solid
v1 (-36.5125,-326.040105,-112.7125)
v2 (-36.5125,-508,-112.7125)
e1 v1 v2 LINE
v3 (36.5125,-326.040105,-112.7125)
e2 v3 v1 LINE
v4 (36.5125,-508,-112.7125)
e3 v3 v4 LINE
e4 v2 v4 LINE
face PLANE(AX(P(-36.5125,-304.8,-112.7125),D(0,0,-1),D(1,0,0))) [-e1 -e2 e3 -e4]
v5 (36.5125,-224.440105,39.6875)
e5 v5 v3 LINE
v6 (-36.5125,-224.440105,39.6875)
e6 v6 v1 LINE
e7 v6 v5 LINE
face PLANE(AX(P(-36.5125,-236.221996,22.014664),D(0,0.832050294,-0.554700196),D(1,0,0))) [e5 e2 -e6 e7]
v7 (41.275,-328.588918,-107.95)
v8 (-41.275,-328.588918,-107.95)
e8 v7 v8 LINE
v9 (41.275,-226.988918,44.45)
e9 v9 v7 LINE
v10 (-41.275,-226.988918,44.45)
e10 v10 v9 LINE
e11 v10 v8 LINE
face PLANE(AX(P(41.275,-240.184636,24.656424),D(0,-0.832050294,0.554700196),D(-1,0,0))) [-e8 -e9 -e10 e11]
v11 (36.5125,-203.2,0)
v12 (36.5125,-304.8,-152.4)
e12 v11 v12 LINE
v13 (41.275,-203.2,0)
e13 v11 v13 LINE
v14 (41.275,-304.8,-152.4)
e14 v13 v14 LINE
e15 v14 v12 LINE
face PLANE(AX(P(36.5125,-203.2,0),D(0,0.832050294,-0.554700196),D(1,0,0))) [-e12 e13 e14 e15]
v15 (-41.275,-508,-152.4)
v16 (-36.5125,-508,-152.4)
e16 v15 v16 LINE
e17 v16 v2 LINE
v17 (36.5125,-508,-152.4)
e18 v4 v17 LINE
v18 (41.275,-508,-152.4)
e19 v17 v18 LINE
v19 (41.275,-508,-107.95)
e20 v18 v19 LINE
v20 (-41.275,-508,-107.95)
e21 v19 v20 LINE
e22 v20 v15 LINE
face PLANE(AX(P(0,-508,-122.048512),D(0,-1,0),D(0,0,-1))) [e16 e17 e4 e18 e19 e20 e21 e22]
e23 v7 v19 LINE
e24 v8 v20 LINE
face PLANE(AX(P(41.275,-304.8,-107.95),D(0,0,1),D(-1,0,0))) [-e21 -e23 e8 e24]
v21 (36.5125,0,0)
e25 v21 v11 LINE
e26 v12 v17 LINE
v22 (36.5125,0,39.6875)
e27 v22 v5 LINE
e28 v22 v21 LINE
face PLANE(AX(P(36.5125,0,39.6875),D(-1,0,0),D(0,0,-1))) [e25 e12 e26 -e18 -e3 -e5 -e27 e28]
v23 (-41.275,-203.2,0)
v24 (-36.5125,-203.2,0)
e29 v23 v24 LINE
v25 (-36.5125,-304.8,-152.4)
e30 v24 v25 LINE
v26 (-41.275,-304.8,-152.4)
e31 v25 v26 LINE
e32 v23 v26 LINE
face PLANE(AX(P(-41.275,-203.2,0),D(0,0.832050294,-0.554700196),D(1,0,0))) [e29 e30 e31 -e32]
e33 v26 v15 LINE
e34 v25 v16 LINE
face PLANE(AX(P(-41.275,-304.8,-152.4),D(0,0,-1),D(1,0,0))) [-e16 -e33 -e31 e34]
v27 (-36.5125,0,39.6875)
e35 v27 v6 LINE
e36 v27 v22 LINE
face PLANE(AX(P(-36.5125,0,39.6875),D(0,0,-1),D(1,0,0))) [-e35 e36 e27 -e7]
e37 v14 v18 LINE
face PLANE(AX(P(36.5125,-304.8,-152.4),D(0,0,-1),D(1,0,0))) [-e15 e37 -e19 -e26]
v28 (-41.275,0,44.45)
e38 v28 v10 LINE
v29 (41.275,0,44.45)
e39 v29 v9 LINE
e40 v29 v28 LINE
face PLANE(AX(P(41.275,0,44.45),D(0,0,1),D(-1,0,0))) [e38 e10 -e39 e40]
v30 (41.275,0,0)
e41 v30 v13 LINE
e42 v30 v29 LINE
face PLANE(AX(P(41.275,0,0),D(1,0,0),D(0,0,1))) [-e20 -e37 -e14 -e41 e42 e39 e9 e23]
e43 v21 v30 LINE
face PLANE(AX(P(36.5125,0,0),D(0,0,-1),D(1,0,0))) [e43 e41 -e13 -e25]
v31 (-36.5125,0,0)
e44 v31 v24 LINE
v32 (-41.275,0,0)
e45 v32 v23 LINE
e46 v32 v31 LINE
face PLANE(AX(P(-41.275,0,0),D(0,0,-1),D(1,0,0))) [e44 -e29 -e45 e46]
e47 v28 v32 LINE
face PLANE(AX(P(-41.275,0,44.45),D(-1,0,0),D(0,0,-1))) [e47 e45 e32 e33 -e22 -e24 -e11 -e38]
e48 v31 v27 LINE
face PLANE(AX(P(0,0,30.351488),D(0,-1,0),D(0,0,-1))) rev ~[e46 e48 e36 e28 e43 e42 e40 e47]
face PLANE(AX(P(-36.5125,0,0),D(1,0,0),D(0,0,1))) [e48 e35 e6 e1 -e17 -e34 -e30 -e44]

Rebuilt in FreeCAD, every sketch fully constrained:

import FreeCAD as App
import Part
import Sketcher

V = App.Vector
Q = App.Units.Quantity

doc = App.newDocument("Part")
body = doc.addObject("PartDesign::Body", "Body")

# Sketch on XZ plane
sketch1 = doc.addObject("Sketcher::SketchObject", "Sketch")
body.addObject(sketch1)
sketch1.AttachmentSupport = (doc.XZ_Plane, [""])
sketch1.MapMode = "FlatFace"
sketch1.addGeometry(Part.LineSegment(V(-41.3, 44.5, 0), V(-41.3, 0, 0)), False)
sketch1.addGeometry(Part.LineSegment(V(-41.3, 0, 0), V(-36.5, 0, 0)), False)
sketch1.addGeometry(Part.LineSegment(V(-36.5, 0, 0), V(-36.5, 39.7, 0)), False)
sketch1.addGeometry(Part.LineSegment(V(-36.5, 39.7, 0), V(36.5, 39.7, 0)), False)
sketch1.addGeometry(Part.LineSegment(V(36.5, 39.7, 0), V(36.5, 0, 0)), False)
sketch1.addGeometry(Part.LineSegment(V(36.5, 0, 0), V(41.3, 0, 0)), False)
sketch1.addGeometry(Part.LineSegment(V(41.3, 0, 0), V(41.3, 44.5, 0)), False)
sketch1.addGeometry(Part.LineSegment(V(41.3, 44.5, 0), V(-41.3, 44.5, 0)), False)
sketch1.addConstraint(Sketcher.Constraint("Coincident", 0, 2, 1, 1))
sketch1.addConstraint(Sketcher.Constraint("Coincident", 1, 2, 2, 1))
sketch1.addConstraint(Sketcher.Constraint("Coincident", 2, 2, 3, 1))
sketch1.addConstraint(Sketcher.Constraint("Coincident", 3, 2, 4, 1))
sketch1.addConstraint(Sketcher.Constraint("Coincident", 4, 2, 5, 1))
sketch1.addConstraint(Sketcher.Constraint("Coincident", 5, 2, 6, 1))
sketch1.addConstraint(Sketcher.Constraint("Coincident", 6, 2, 7, 1))
sketch1.addConstraint(Sketcher.Constraint("Coincident", 7, 2, 0, 1))
sketch1.addConstraint(Sketcher.Constraint("Vertical", 0))
sketch1.addConstraint(Sketcher.Constraint("Horizontal", 1))
sketch1.addConstraint(Sketcher.Constraint("Vertical", 2))
sketch1.addConstraint(Sketcher.Constraint("Horizontal", 3))
sketch1.addConstraint(Sketcher.Constraint("Vertical", 4))
sketch1.addConstraint(Sketcher.Constraint("Horizontal", 5))
sketch1.addConstraint(Sketcher.Constraint("Vertical", 6))
sketch1.addConstraint(Sketcher.Constraint("Horizontal", 7))
sketch1.addConstraint(Sketcher.Constraint("Symmetric", 1, 2, 4, 2, -1, 1))
sketch1.addConstraint(Sketcher.Constraint("Symmetric", 0, 2, 5, 2, -2))
sketch1.addConstraint(Sketcher.Constraint("DistanceX", 7, 2, 7, 1, Q("3.25 in")))
sketch1.addConstraint(Sketcher.Constraint("DistanceY", 0, 2, 0, 1, Q("1.75 in")))
sketch1.addConstraint(Sketcher.Constraint("DistanceX", 1, 1, 1, 2, Q("0.1875 in")))
sketch1.addConstraint(Sketcher.Constraint("DistanceY", 2, 1, 2, 2, Q("1.5625 in")))

# Sketch on YZ plane
sketch2 = doc.addObject("Sketcher::SketchObject", "Sketch001")
body.addObject(sketch2)
sketch2.AttachmentSupport = (doc.YZ_Plane, [""])
sketch2.MapMode = "FlatFace"
sketch2.addGeometry(Part.LineSegment(V(0, 0, 0), V(-203, 0, 0)), False)
sketch2.addGeometry(Part.LineSegment(V(-203, 0, 0), V(-305, -152, 0)), False)
sketch2.addGeometry(Part.LineSegment(V(-305, -152, 0), V(-508, -152, 0)), False)
sketch2.addConstraint(Sketcher.Constraint("Coincident", 0, 2, 1, 1))
sketch2.addConstraint(Sketcher.Constraint("Coincident", 1, 2, 2, 1))
sketch2.addConstraint(Sketcher.Constraint("Horizontal", 0))
sketch2.addConstraint(Sketcher.Constraint("Horizontal", 2))
sketch2.addConstraint(Sketcher.Constraint("Coincident", 0, 1, -1, 1))
sketch2.addConstraint(Sketcher.Constraint("Equal", 0, 2))
sketch2.addConstraint(Sketcher.Constraint("DistanceX", 0, 2, 0, 1, Q("8 in")))
sketch2.addConstraint(Sketcher.Constraint("DistanceX", 1, 2, -1, 1, Q("12 in")))
sketch2.addConstraint(Sketcher.Constraint("DistanceY", 1, 2, -1, 1, Q("6 in")))
doc.recompute()

additivepipe = doc.addObject("PartDesign::AdditivePipe", "AdditivePipe")
body.addObject(additivepipe)
additivepipe.Profile = sketch1
additivepipe.Spine = (sketch2, ["Edge1", "Edge2", "Edge3"])
additivepipe.Transition = "Right corner"

doc.recompute()
